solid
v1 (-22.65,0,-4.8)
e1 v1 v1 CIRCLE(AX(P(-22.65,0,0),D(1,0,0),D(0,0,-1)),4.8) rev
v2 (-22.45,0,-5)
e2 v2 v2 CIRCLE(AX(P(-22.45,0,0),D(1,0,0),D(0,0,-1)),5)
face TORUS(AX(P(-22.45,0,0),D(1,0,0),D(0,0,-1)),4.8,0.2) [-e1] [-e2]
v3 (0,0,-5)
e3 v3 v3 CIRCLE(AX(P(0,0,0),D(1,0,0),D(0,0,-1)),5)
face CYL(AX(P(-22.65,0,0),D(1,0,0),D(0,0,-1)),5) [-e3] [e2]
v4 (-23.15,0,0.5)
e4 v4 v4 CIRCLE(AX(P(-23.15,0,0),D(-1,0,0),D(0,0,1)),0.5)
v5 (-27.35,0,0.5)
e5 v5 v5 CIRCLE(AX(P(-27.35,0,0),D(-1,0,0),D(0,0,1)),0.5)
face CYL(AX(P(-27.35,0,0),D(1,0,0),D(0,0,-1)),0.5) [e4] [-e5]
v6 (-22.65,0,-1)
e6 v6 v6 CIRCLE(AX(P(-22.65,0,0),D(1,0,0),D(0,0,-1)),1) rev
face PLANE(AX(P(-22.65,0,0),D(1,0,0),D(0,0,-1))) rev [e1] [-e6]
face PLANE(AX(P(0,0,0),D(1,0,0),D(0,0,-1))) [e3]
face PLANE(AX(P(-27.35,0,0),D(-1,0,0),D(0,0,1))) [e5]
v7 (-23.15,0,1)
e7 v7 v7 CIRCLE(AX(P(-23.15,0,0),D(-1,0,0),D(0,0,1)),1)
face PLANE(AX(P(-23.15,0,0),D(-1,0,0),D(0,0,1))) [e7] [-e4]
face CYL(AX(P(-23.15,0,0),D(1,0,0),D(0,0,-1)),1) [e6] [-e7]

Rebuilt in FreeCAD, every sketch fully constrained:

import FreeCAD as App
import Part
import Sketcher


def edges_at(feature, points):
    """Names of the edges that pass closest to the given points."""
    edges = feature.Shape.Edges
    near = lambda p: min(range(len(edges)), key=lambda i: edges[i].distToShape(Part.Vertex(*p))[0])
    return sorted({f"Edge{near(p) + 1}" for p in points})

doc = App.newDocument("Part")
body = doc.addObject("PartDesign::Body", "Body")

# Sketch on YZ plane
sketch1 = doc.addObject("Sketcher::SketchObject", "Sketch")
body.addObject(sketch1)
sketch1.AttachmentSupport = (doc.YZ_Plane, [""])
sketch1.MapMode = "FlatFace"
sketch1.addGeometry(Part.Circle(App.Vector(0, 0, 0), App.Vector(0, 0, 1), 5), False)
sketch1.addConstraint(Sketcher.Constraint("Coincident", 0, 3, -1, 1))
sketch1.addConstraint(Sketcher.Constraint("Diameter", 0, 10.0))
pad1 = doc.addObject("PartDesign::Pad", "Pad")
body.addObject(pad1)
pad1.Profile = sketch1
pad1.Length = 22.65
pad1.Reversed = True

# Sketch on YZ plane
sketch2 = doc.addObject("Sketcher::SketchObject", "Sketch001")
body.addObject(sketch2)
sketch2.AttachmentSupport = (doc.YZ_Plane, [""])
sketch2.MapMode = "FlatFace"
sketch2.AttachmentOffset = App.Placement(App.Vector(0, 0, -22.65), App.Rotation())
sketch2.addGeometry(Part.Circle(App.Vector(0, 0, 0), App.Vector(0, 0, 1), 0.5), False)
sketch2.addConstraint(Sketcher.Constraint("Coincident", 0, 3, -1, 1))
sketch2.addConstraint(Sketcher.Constraint("Diameter", 0, 1.0))
pad2 = doc.addObject("PartDesign::Pad", "Pad001")
body.addObject(pad2)
pad2.Profile = sketch2
pad2.Length = 4.7
pad2.Reversed = True

# Sketch on YZ plane
sketch3 = doc.addObject("Sketcher::SketchObject", "Sketch002")
body.addObject(sketch3)
sketch3.AttachmentSupport = (doc.YZ_Plane, [""])
sketch3.MapMode = "FlatFace"
sketch3.AttachmentOffset = App.Placement(App.Vector(0, 0, -22.65), App.Rotation())
sketch3.addGeometry(Part.Circle(App.Vector(0, 0, 0), App.Vector(0, 0, 1), 1), False)
sketch3.addConstraint(Sketcher.Constraint("Coincident", 0, 3, -1, 1))
sketch3.addConstraint(Sketcher.Constraint("Diameter", 0, 2.0))
pad3 = doc.addObject("PartDesign::Pad", "Pad002")
body.addObject(pad3)
pad3.Profile = sketch3
pad3.Length = 0.5
pad3.Reversed = True
doc.recompute()

fillet = doc.addObject("PartDesign::Fillet", "Fillet")
body.addObject(fillet)
fillet.Base = (pad3, edges_at(pad3, [(-22.65, 0, 5)]))
fillet.Radius = 0.2

doc.recompute()
